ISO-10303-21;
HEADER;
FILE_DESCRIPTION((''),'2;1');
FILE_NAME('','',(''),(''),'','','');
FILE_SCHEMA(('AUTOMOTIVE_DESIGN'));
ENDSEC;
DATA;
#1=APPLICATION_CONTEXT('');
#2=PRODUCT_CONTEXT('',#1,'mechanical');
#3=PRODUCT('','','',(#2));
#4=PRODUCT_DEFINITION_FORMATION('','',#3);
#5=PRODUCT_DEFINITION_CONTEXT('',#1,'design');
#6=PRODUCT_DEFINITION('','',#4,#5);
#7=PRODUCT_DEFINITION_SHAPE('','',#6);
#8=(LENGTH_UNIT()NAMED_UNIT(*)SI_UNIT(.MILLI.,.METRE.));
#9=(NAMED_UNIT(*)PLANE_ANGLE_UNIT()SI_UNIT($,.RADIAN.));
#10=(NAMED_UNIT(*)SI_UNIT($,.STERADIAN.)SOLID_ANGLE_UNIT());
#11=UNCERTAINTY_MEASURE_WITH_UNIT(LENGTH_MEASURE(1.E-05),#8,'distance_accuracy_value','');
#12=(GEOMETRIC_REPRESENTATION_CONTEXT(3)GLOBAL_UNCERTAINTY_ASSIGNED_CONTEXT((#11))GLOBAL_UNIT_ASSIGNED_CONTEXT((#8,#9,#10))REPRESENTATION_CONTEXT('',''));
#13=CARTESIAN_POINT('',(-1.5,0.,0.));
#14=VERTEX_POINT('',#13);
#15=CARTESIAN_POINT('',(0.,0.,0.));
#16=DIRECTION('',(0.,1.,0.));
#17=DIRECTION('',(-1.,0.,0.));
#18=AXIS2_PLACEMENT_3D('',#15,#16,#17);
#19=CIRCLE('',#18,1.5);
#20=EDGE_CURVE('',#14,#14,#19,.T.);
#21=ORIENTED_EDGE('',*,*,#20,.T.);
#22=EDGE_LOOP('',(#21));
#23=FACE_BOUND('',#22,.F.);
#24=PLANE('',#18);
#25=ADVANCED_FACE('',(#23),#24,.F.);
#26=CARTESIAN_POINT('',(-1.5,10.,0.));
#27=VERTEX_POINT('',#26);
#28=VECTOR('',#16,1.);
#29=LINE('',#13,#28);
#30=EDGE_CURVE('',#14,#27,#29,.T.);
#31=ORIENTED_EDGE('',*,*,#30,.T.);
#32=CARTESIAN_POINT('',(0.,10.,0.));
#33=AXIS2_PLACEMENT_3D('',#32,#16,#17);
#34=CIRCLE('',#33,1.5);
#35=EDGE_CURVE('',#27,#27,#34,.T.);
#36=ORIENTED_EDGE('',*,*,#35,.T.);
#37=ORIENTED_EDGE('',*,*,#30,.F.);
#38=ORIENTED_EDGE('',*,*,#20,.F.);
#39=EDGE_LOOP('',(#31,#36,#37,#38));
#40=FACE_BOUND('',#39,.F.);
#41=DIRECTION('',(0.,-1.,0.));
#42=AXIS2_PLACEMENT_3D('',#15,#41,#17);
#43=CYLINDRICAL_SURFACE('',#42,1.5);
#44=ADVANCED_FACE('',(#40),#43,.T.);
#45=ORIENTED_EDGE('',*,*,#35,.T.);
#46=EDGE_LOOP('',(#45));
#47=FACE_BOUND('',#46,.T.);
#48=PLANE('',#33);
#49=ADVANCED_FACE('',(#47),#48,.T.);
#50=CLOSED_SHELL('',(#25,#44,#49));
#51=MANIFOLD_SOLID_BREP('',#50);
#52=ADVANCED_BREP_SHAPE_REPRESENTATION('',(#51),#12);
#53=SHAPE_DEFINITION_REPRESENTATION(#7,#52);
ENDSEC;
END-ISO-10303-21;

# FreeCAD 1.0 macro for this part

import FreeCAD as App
import Part
import Sketcher
Q = App.Units.Quantity

doc = App.newDocument("Part")
body = doc.addObject("PartDesign::Body", "Body")

# Sketch on XZ plane
sketch1 = doc.addObject("Sketcher::SketchObject", "Sketch")
body.addObject(sketch1)
sketch1.AttachmentSupport = (doc.XZ_Plane, [""])
sketch1.MapMode = "FlatFace"
sketch1.addGeometry(Part.Circle(App.Vector(0, 0, 0), App.Vector(0, 0, 1), 1.5), False)
sketch1.addConstraint([
    Sketcher.Constraint("Coincident", 0, 3, -1, 1),
    Sketcher.Constraint("Diameter", 0, Q("3 mm")),
])
pad1 = doc.addObject("PartDesign::Pad", "Pad")
body.addObject(pad1)
pad1.Profile = sketch1
pad1.Length = 10
pad1.Reversed = True

doc.recompute()
